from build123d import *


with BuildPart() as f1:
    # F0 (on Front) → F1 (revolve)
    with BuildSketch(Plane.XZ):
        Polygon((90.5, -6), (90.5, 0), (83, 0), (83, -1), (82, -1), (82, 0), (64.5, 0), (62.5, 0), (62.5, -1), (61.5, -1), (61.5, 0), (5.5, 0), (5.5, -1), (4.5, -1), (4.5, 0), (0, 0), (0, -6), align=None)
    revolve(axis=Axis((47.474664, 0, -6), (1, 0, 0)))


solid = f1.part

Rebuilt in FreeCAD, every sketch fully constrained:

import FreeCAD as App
import Part
import Sketcher
from FreeCAD import Vector
Q = App.Units.Quantity


def add_polygon(sketch, points):
    """Adds a closed chain of lines whose ends are joined by coincident constraints."""
    first, n = sketch.GeometryCount, len(points)
    for a, b in zip(points, points[1:] + points[:1]):
        sketch.addGeometry(Part.LineSegment(App.Vector(*a, 0), App.Vector(*b, 0)), False)
    for i in range(n):
        sketch.addConstraint(Sketcher.Constraint("Coincident", first + i, 2, first + (i + 1) % n, 1))

doc = App.newDocument("Part")
body = doc.addObject("PartDesign::Body", "Body")

# Sketch on XZ plane
sketch1 = body.newObject("Sketcher::SketchObject", "Sketch")
sketch1.AttachmentSupport = (doc.getObject("XZ_Plane"), [""])
sketch1.MapMode = "FlatFace"
add_polygon(sketch1, [(90.5, -6), (90.5, 0), (83, 0), (83, -1), (82, -1), (82, 0), (62.5, 0), (62.5, -1), (61.5, -1), (61.5, 0), (5.5, 0), (5.5, -1), (4.5, -1), (4.5, 0), (0, 0), (0, -6)])  # lines 0-15
sketch1.addGeometry(Part.LineSegment(Vector(0, -6, 0), Vector(90.5, -6, 0)), True)  # axis
sketch1.addConstraint([
    Sketcher.Constraint("Vertical", 0),
    Sketcher.Constraint("Horizontal", 1),
    Sketcher.Constraint("Vertical", 2),
    Sketcher.Constraint("Horizontal", 3),
    Sketcher.Constraint("Vertical", 4),
    Sketcher.Constraint("Horizontal", 5),
    Sketcher.Constraint("Vertical", 6),
    Sketcher.Constraint("Horizontal", 7),
    Sketcher.Constraint("Vertical", 8),
    Sketcher.Constraint("Horizontal", 9),
    Sketcher.Constraint("Vertical", 10),
    Sketcher.Constraint("Horizontal", 11),
    Sketcher.Constraint("Vertical", 12),
    Sketcher.Constraint("Horizontal", 13),
    Sketcher.Constraint("Vertical", 14),
    Sketcher.Constraint("Horizontal", 15),
    Sketcher.Constraint("Horizontal", 16),
    Sketcher.Constraint("Coincident", 13, 2, -1, 1),
    Sketcher.Constraint("Coincident", 16, 1, 14, 2),
    Sketcher.Constraint("PointOnObject", 0, 2, -1),
    Sketcher.Constraint("PointOnObject", 4, 2, -1),
    Sketcher.Constraint("PointOnObject", 8, 2, -1),
    Sketcher.Constraint("Horizontal", 3, 2, 6, 2),
    Sketcher.Constraint("Horizontal", 7, 2, 10, 2),
    Sketcher.Constraint("Vertical", 0, 2, 16, 2),
    Sketcher.Constraint("Equal", 3, 7),
    Sketcher.Constraint("Equal", 7, 11),
    Sketcher.Constraint("Equal", 11, 2),
    Sketcher.Constraint("DistanceX", 3, 2, 3, 1, Q("1 mm")),
    Sketcher.Constraint("DistanceX", 9, 2, 9, 1, Q("56 mm")),
    Sketcher.Constraint("DistanceY", 0, 1, 0, 2, Q("6 mm")),
    Sketcher.Constraint("DistanceX", 1, 2, 1, 1, Q("7.5 mm")),
    Sketcher.Constraint("DistanceX", 5, 2, 5, 1, Q("19.5 mm")),
    Sketcher.Constraint("DistanceX", 13, 2, 13, 1, Q("4.5 mm")),
])
revolution = body.newObject("PartDesign::Revolution", "Revolution")
revolution.Profile = sketch1
revolution.ReferenceAxis = (sketch1, ["Axis0"])
revolution.Angle = 360

doc.recompute()
